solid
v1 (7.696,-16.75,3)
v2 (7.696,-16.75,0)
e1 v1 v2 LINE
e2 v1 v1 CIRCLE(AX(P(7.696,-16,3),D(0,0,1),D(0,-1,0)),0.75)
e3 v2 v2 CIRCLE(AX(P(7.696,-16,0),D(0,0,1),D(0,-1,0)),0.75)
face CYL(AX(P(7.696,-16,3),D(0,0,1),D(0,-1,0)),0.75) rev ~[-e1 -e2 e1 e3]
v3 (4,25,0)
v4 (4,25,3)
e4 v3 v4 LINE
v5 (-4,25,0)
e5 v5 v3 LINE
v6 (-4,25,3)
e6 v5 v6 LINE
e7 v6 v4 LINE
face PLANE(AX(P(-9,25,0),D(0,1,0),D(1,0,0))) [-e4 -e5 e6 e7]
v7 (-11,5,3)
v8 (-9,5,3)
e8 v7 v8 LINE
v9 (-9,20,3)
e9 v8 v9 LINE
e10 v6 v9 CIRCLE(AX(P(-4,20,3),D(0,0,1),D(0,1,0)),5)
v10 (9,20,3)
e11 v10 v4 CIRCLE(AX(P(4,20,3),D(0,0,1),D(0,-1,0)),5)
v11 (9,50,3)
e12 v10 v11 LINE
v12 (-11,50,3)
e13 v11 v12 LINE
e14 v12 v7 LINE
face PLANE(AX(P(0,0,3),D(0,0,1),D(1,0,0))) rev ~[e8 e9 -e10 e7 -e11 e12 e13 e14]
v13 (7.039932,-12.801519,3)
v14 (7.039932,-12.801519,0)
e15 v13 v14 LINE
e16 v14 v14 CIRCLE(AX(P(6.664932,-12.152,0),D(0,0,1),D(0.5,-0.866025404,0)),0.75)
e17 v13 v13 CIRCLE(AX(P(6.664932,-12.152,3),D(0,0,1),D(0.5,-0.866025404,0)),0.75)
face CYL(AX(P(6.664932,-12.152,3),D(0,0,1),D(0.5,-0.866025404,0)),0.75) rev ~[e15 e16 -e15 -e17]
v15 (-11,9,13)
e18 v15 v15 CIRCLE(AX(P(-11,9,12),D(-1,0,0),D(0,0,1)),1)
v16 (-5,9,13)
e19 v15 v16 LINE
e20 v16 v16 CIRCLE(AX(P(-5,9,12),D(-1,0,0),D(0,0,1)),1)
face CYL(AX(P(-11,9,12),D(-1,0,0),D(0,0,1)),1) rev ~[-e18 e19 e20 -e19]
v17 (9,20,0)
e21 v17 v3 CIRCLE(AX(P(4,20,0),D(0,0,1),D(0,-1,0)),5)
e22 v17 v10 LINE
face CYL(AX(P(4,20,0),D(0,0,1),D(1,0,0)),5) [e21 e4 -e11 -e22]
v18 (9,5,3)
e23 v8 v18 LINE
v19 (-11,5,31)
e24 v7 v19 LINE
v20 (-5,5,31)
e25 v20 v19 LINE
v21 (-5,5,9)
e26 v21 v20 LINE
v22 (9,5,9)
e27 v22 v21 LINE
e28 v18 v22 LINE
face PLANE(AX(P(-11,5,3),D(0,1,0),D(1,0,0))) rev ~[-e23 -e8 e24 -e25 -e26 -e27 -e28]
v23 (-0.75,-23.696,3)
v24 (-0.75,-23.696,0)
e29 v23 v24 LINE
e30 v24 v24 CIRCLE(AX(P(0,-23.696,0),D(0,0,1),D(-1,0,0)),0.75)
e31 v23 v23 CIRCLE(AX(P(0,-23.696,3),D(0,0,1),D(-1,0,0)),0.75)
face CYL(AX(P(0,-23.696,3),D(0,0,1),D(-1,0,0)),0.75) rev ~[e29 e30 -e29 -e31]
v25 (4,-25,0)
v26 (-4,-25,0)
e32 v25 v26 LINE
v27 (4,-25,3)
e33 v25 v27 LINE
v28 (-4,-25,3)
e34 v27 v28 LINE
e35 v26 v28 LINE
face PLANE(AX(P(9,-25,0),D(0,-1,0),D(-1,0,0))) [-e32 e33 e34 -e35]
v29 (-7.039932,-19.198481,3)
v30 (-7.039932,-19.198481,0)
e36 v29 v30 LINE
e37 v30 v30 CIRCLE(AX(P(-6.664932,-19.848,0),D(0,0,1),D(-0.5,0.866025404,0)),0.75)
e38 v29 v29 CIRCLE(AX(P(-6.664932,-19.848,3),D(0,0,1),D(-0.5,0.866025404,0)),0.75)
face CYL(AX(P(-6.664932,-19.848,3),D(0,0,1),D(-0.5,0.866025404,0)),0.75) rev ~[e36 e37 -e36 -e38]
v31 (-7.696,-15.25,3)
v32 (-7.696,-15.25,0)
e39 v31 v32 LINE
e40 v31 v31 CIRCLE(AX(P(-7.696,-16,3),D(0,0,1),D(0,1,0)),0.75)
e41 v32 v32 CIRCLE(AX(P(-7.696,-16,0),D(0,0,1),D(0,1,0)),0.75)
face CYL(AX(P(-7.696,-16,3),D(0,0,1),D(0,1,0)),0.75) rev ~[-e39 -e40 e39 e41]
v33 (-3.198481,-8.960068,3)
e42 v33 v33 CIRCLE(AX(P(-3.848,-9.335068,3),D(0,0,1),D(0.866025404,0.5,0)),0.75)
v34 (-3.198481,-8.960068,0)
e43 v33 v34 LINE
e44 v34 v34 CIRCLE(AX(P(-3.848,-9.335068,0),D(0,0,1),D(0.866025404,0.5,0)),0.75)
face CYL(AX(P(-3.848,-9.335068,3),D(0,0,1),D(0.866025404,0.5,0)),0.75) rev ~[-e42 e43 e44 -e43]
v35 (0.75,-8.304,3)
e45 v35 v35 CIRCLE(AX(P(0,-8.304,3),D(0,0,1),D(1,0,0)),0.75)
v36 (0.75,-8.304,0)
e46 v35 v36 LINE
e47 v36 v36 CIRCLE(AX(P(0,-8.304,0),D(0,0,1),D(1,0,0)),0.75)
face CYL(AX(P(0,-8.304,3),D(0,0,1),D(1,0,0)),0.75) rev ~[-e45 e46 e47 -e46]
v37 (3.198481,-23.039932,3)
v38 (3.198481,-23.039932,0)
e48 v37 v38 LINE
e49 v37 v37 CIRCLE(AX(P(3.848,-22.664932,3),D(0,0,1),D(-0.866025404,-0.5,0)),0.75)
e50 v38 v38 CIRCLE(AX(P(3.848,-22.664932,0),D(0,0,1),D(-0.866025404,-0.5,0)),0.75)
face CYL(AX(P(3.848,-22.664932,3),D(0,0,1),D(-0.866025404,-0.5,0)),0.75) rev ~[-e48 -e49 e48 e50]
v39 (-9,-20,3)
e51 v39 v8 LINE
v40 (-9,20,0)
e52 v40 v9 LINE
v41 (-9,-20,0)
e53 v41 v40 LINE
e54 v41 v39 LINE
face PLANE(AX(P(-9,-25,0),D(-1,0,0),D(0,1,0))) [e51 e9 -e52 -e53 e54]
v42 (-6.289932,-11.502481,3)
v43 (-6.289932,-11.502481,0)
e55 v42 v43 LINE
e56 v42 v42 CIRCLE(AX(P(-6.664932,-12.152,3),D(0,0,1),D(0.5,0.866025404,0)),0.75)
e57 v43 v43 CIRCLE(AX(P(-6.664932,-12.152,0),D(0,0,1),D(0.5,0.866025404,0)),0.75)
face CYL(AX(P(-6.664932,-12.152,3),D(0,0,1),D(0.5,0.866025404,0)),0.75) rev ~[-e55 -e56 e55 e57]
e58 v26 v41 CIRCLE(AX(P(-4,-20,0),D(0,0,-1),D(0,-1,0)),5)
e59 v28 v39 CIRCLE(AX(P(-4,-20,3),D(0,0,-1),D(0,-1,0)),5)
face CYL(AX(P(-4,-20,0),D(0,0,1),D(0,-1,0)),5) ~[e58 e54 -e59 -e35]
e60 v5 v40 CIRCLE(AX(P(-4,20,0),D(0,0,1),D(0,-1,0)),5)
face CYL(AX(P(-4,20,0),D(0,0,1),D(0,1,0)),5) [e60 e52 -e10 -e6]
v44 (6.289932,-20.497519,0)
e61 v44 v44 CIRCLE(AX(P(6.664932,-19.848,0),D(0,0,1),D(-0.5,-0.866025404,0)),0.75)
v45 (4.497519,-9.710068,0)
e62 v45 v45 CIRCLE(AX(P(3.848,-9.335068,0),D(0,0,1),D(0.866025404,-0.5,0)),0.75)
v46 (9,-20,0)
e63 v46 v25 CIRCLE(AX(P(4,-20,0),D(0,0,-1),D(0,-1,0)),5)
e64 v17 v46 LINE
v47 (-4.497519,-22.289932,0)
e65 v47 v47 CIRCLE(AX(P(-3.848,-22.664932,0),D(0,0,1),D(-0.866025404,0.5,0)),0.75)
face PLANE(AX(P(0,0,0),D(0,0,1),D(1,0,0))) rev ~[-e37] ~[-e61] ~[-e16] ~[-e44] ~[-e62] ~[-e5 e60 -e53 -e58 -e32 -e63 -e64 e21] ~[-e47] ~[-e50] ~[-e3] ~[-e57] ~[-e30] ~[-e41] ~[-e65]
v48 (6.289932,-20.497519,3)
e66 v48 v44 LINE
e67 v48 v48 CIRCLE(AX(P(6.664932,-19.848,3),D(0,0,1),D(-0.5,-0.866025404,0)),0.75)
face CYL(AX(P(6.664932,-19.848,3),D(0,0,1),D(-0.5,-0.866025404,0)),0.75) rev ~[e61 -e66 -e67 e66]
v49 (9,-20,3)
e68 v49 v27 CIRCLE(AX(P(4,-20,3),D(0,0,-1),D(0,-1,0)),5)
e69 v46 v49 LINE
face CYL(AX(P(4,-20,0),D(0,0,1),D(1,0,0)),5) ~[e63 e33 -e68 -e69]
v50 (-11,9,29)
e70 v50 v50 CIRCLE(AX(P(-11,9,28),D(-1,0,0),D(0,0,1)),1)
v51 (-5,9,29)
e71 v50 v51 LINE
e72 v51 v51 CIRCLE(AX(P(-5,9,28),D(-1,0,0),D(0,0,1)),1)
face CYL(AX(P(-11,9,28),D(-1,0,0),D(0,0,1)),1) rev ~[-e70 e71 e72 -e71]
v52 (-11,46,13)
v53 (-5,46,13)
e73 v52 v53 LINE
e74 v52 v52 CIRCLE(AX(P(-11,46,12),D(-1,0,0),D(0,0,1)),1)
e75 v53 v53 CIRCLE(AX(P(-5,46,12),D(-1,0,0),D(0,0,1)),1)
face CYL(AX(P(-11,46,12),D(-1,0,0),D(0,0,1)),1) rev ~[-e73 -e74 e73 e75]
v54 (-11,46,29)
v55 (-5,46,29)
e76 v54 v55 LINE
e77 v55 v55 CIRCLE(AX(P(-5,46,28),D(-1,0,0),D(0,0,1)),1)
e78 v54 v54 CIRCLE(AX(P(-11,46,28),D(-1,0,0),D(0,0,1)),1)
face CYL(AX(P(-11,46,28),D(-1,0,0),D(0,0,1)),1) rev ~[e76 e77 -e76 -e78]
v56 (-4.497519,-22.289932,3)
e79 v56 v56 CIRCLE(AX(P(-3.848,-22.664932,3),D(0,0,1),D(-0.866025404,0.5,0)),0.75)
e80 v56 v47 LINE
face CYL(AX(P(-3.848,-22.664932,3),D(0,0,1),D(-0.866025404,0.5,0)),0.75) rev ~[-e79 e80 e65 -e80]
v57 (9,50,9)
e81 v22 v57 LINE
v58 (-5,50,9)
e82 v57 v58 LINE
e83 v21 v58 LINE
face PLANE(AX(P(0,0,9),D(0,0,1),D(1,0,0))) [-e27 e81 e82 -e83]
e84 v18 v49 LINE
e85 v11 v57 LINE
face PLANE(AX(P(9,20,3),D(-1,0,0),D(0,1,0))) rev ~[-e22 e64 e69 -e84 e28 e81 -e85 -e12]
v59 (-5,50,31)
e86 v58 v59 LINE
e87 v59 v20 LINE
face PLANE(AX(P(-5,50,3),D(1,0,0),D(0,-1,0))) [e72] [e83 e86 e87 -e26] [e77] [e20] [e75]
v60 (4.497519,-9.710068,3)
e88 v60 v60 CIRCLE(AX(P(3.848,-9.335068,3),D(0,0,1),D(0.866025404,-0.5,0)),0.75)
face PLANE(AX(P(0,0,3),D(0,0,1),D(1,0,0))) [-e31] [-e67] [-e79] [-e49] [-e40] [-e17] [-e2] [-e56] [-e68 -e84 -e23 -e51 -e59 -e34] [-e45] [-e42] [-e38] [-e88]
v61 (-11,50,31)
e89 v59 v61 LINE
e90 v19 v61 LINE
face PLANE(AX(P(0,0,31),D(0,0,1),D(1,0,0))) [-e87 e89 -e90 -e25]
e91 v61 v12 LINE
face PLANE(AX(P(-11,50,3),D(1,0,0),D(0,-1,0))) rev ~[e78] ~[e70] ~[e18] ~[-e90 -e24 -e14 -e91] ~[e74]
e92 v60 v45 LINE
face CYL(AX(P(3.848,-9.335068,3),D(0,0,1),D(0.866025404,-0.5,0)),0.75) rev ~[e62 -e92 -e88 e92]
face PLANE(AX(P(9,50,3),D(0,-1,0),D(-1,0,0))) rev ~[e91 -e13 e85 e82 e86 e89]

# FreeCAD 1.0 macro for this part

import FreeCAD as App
import Part
import Sketcher
from FreeCAD import Vector


def edges_at(feature, points):
    """Names of the edges that pass closest to the given points."""
    edges = feature.Shape.Edges
    near = lambda p: min(range(len(edges)), key=lambda i: edges[i].distToShape(Part.Vertex(*p))[0])
    return sorted({f"Edge{near(p) + 1}" for p in points})


def add_polygon(sketch, points):
    """Adds a closed chain of lines whose ends are joined by coincident constraints."""
    first, n = sketch.GeometryCount, len(points)
    for a, b in zip(points, points[1:] + points[:1]):
        sketch.addGeometry(Part.LineSegment(App.Vector(*a, 0), App.Vector(*b, 0)), False)
    for i in range(n):
        sketch.addConstraint(Sketcher.Constraint("Coincident", first + i, 2, first + (i + 1) % n, 1))

doc = App.newDocument("Part")
body = doc.addObject("PartDesign::Body", "Body")

sketch1 = body.newObject("Sketcher::SketchObject", "Sketch")
sketch1.AttachmentSupport = (doc.getObject("XY_Plane"), [""])
sketch1.MapMode = "FlatFace"
add_polygon(sketch1, [(9, 25), (-9, 25), (-9, -25), (9, -25)])
sketch1.addConstraint(Sketcher.Constraint("Horizontal", 0))
sketch1.addConstraint(Sketcher.Constraint("Vertical", 1))
sketch1.addConstraint(Sketcher.Constraint("Horizontal", 2))
sketch1.addConstraint(Sketcher.Constraint("Vertical", 3))
sketch1.addConstraint(Sketcher.Constraint("Symmetric", 0, 2, 2, 2, -1, 1))
sketch1.addConstraint(Sketcher.Constraint("DistanceX", 0, 2, 0, 1, 18.0))
sketch1.addConstraint(Sketcher.Constraint("DistanceY", 1, 2, 1, 1, 50.0))
pad1 = body.newObject("PartDesign::Pad", "Pad")
pad1.Profile = sketch1
pad1.Length = 3
doc.recompute()

fillet = body.newObject("PartDesign::Fillet", "Fillet")
fillet.Base = (pad1, edges_at(pad1, [(-9, -25, 1.5), (9, -25, 1.5)]))
fillet.Radius = 5
doc.recompute()

fillet2 = body.newObject("PartDesign::Fillet", "Fillet001")
fillet2.Base = (fillet, edges_at(fillet, [(-9, 25, 1.5), (9, 25, 1.5)]))
fillet2.Radius = 5

sketch2 = body.newObject("Sketcher::SketchObject", "Sketch001")
sketch2.AttachmentSupport = (doc.getObject("XY_Plane"), [""])
sketch2.MapMode = "FlatFace"
sketch2.AttachmentOffset = App.Placement(Vector(0, 0, 3), App.Rotation())
sketch2.addGeometry(Part.Circle(Vector(0, -8.304, 0), Vector(0, 0, 1), 0.75), False)
sketch2.addConstraint(Sketcher.Constraint("PointOnObject", 0, 3, -2))
sketch2.addConstraint(Sketcher.Constraint("Diameter", 0, 1.5))
sketch2.addConstraint(Sketcher.Constraint("DistanceY", 0, 3, -1, 1, 8.304))
pocket1 = body.newObject("PartDesign::Pocket", "Pocket")
pocket1.Profile = sketch2
pocket1.Length = 3
doc.recompute()

datumline = body.newObject("PartDesign::Line", "DatumLine")
datumline.Placement = App.Placement(Vector(0, -16, 0), App.Rotation(Vector(0, 0, 1), Vector(0, 0, 1)))
polarpattern = body.newObject("PartDesign::PolarPattern", "PolarPattern")
polarpattern.Originals = [pocket1]
polarpattern.Axis = (datumline, [""])
polarpattern.Angle = 360
polarpattern.Occurrences = 12
body.Tip = polarpattern

sketch3 = body.newObject("Sketcher::SketchObject", "Sketch002")
sketch3.AttachmentSupport = (doc.getObject("XY_Plane"), [""])
sketch3.MapMode = "FlatFace"
sketch3.AttachmentOffset = App.Placement(Vector(0, 0, 3), App.Rotation())
add_polygon(sketch3, [(-11, 50), (-11, 5), (9, 5), (9, 50)])
sketch3.addConstraint(Sketcher.Constraint("Vertical", 0))
sketch3.addConstraint(Sketcher.Constraint("Horizontal", 1))
sketch3.addConstraint(Sketcher.Constraint("Vertical", 2))
sketch3.addConstraint(Sketcher.Constraint("Horizontal", 3))
sketch3.addConstraint(Sketcher.Constraint("DistanceX", 1, 1, 1, 2, 20.0))
sketch3.addConstraint(Sketcher.Constraint("DistanceY", 0, 2, 0, 1, 45.0))
sketch3.addConstraint(Sketcher.Constraint("DistanceX", 0, 2, -1, 1, 11.0))
sketch3.addConstraint(Sketcher.Constraint("DistanceY", -1, 1, 0, 2, 5.0))
pad2 = body.newObject("PartDesign::Pad", "Pad001")
pad2.Profile = sketch3
pad2.Length = 6

sketch4 = body.newObject("Sketcher::SketchObject", "Sketch003")
sketch4.AttachmentSupport = (doc.getObject("XY_Plane"), [""])
sketch4.MapMode = "FlatFace"
sketch4.AttachmentOffset = App.Placement(Vector(0, 0, 3), App.Rotation())
add_polygon(sketch4, [(-5, 5), (-5, 50), (-11, 50), (-11, 5)])
sketch4.addConstraint(Sketcher.Constraint("Vertical", 0))
sketch4.addConstraint(Sketcher.Constraint("Horizontal", 1))
sketch4.addConstraint(Sketcher.Constraint("Vertical", 2))
sketch4.addConstraint(Sketcher.Constraint("Horizontal", 3))
sketch4.addConstraint(Sketcher.Constraint("DistanceX", 1, 2, 1, 1, 6.0))
sketch4.addConstraint(Sketcher.Constraint("DistanceY", 0, 1, 0, 2, 45.0))
sketch4.addConstraint(Sketcher.Constraint("DistanceX", 0, 2, -1, 1, 5.0))
sketch4.addConstraint(Sketcher.Constraint("DistanceY", -1, 1, 0, 2, 50.0))
pad3 = body.newObject("PartDesign::Pad", "Pad002")
pad3.Profile = sketch4
pad3.Length = 28

sketch5 = body.newObject("Sketcher::SketchObject", "Sketch004")
sketch5.AttachmentSupport = (doc.getObject("YZ_Plane"), [""])
sketch5.MapMode = "FlatFace"
sketch5.AttachmentOffset = App.Placement(Vector(0, 0, -11), App.Rotation())
sketch5.addGeometry(Part.Circle(Vector(9, 28, 0), Vector(0, 0, 1), 1), False)
sketch5.addGeometry(Part.Circle(Vector(9, 12, 0), Vector(0, 0, 1), 1), False)
sketch5.addGeometry(Part.Circle(Vector(46, 28, 0), Vector(0, 0, 1), 1), False)
sketch5.addGeometry(Part.Circle(Vector(46, 12, 0), Vector(0, 0, 1), 1), False)
sketch5.addConstraint(Sketcher.Constraint("Equal", 0, 1))
sketch5.addConstraint(Sketcher.Constraint("Equal", 1, 2))
sketch5.addConstraint(Sketcher.Constraint("Equal", 2, 3))
sketch5.addConstraint(Sketcher.Constraint("Horizontal", 0, 3, 2, 3))
sketch5.addConstraint(Sketcher.Constraint("Horizontal", 1, 3, 3, 3))
sketch5.addConstraint(Sketcher.Constraint("Vertical", 0, 3, 1, 3))
sketch5.addConstraint(Sketcher.Constraint("Vertical", 2, 3, 3, 3))
sketch5.addConstraint(Sketcher.Constraint("Diameter", 0, 2.0))
sketch5.addConstraint(Sketcher.Constraint("DistanceY", 1, 3, 0, 3, 16.0))
sketch5.addConstraint(Sketcher.Constraint("DistanceX", 0, 3, 2, 3, 37.0))
sketch5.addConstraint(Sketcher.Constraint("DistanceX", -1, 1, 0, 3, 9.0))
sketch5.addConstraint(Sketcher.Constraint("DistanceY", -1, 1, 0, 3, 28.0))
pocket2 = body.newObject("PartDesign::Pocket", "Pocket001")
pocket2.Profile = sketch5
pocket2.Length = 20
pocket2.Reversed = True

doc.recompute()
